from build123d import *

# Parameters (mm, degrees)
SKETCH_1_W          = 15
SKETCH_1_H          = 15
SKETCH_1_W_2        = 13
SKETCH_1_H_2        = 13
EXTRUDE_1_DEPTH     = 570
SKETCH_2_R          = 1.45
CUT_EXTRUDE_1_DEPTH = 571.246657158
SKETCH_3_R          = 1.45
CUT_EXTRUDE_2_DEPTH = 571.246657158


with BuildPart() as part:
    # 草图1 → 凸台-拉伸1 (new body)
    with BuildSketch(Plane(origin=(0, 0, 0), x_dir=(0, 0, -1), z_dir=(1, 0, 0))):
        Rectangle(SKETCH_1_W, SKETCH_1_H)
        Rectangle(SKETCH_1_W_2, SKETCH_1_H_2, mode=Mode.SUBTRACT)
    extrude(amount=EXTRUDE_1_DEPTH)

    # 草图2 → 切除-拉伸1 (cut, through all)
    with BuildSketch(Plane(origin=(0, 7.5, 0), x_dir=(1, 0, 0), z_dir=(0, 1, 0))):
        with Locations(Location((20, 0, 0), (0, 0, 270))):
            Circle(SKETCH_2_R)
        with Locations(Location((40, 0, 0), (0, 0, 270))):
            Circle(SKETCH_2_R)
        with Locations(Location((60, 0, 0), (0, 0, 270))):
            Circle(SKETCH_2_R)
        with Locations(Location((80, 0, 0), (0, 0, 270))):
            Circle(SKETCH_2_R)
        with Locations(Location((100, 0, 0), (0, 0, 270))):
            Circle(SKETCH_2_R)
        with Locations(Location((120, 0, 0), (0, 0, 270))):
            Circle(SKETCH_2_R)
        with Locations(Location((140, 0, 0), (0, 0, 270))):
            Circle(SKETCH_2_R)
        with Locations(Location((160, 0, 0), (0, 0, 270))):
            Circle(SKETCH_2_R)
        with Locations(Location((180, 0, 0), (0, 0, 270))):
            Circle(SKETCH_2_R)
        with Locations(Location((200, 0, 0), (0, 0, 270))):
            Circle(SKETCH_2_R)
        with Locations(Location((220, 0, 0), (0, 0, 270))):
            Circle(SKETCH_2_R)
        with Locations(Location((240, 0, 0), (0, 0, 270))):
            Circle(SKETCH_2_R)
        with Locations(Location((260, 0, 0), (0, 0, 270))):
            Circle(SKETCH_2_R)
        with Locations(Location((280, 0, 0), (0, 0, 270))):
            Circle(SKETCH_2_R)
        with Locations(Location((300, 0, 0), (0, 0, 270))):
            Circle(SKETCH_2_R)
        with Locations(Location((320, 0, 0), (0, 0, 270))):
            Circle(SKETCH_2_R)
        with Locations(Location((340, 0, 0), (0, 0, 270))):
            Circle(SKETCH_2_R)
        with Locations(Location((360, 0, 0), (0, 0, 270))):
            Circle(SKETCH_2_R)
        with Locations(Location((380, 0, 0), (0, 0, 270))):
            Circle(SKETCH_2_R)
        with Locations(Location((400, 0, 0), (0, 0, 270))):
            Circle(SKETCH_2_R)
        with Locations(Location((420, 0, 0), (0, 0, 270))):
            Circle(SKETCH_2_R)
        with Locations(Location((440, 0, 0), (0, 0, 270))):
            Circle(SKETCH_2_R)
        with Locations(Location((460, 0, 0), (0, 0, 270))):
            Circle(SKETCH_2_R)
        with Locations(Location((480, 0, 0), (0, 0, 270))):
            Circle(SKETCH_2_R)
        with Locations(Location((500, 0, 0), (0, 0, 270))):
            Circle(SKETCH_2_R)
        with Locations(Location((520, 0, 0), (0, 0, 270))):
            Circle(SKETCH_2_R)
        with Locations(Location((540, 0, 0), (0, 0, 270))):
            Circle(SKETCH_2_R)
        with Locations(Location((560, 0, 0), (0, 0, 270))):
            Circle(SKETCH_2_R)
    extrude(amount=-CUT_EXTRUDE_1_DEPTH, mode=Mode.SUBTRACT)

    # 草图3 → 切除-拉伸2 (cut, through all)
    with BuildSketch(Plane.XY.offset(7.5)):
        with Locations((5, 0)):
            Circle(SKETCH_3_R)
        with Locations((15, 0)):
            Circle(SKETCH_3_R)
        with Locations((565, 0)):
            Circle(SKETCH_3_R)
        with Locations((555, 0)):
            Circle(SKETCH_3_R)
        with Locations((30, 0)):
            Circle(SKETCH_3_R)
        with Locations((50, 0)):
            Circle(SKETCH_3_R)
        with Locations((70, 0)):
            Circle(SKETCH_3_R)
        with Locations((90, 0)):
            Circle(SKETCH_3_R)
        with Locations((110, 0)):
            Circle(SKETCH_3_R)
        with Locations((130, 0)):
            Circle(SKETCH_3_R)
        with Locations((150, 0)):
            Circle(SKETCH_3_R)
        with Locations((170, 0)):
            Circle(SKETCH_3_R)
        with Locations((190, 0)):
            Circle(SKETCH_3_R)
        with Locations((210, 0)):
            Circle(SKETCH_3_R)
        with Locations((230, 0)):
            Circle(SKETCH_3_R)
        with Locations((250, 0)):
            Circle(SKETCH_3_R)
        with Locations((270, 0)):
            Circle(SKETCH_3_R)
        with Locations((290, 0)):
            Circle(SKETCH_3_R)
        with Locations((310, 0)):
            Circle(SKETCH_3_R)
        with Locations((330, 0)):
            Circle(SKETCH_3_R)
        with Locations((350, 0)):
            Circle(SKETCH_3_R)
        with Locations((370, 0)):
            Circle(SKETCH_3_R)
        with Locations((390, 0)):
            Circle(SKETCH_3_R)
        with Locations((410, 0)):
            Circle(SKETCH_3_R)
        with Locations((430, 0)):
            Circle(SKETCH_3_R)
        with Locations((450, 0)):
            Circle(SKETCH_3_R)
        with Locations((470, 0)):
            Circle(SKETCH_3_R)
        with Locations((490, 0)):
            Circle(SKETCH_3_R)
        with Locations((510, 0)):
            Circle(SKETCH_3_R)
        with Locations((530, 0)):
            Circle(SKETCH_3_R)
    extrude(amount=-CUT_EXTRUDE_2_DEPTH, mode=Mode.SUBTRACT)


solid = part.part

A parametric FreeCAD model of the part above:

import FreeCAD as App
import Part
import Sketcher
Q = App.Units.Quantity


def add_polygon(sketch, points):
    """Adds a closed chain of lines whose ends are joined by coincident constraints."""
    first, n = sketch.GeometryCount, len(points)
    for a, b in zip(points, points[1:] + points[:1]):
        sketch.addGeometry(Part.LineSegment(App.Vector(*a, 0), App.Vector(*b, 0)), False)
    for i in range(n):
        sketch.addConstraint(Sketcher.Constraint("Coincident", first + i, 2, first + (i + 1) % n, 1))

doc = App.newDocument("Part")
body = doc.addObject("PartDesign::Body", "Body")

sketch1 = doc.addObject("Sketcher::SketchObject", "Sketch")
body.addObject(sketch1)
sketch1.AttachmentSupport = (doc.YZ_Plane, [""])
sketch1.MapMode = "FlatFace"
add_polygon(sketch1, [(8, 8), (-8, 8), (-8, -8), (8, -8)])
add_polygon(sketch1, [(-6, -6), (-6, 6), (6, 6), (6, -6)])
sketch1.addConstraint(Sketcher.Constraint("Horizontal", 0))
sketch1.addConstraint(Sketcher.Constraint("Vertical", 1))
sketch1.addConstraint(Sketcher.Constraint("Horizontal", 2))
sketch1.addConstraint(Sketcher.Constraint("Vertical", 3))
sketch1.addConstraint(Sketcher.Constraint("Vertical", 4))
sketch1.addConstraint(Sketcher.Constraint("Horizontal", 5))
sketch1.addConstraint(Sketcher.Constraint("Vertical", 6))
sketch1.addConstraint(Sketcher.Constraint("Horizontal", 7))
sketch1.addConstraint(Sketcher.Constraint("Symmetric", 0, 2, 2, 2, -1, 1))
sketch1.addConstraint(Sketcher.Constraint("Symmetric", 4, 2, 6, 2, -1, 1))
sketch1.addConstraint(Sketcher.Constraint("Equal", 2, 1))
sketch1.addConstraint(Sketcher.Constraint("Equal", 7, 4))
sketch1.addConstraint(Sketcher.Constraint("DistanceX", 0, 2, 0, 1, Q("15 mm")))
sketch1.addConstraint(Sketcher.Constraint("DistanceX", 5, 1, 5, 2, Q("13 mm")))
pad1 = doc.addObject("PartDesign::Pad", "Pad")
body.addObject(pad1)
pad1.Profile = sketch1
pad1.Length = 570

sketch2 = doc.addObject("Sketcher::SketchObject", "Sketch001")
body.addObject(sketch2)
sketch2.AttachmentSupport = (doc.XZ_Plane, [""])
sketch2.MapMode = "FlatFace"
sketch2.AttachmentOffset = App.Placement(App.Vector(0, 0, -7.5), App.Rotation())
sketch2.addGeometry(Part.Circle(App.Vector(20, 0, 0), App.Vector(0, 0, 1), 1.4), False)
sketch2.addGeometry(Part.Circle(App.Vector(40, 0, 0), App.Vector(0, 0, 1), 1.4), False)
sketch2.addGeometry(Part.Circle(App.Vector(60, 0, 0), App.Vector(0, 0, 1), 1.4), False)
sketch2.addGeometry(Part.Circle(App.Vector(80, 0, 0), App.Vector(0, 0, 1), 1.4), False)
sketch2.addGeometry(Part.Circle(App.Vector(100, 0, 0), App.Vector(0, 0, 1), 1.4), False)
sketch2.addGeometry(Part.Circle(App.Vector(120, 0, 0), App.Vector(0, 0, 1), 1.4), False)
sketch2.addGeometry(Part.Circle(App.Vector(140, 0, 0), App.Vector(0, 0, 1), 1.4), False)
sketch2.addGeometry(Part.Circle(App.Vector(160, 0, 0), App.Vector(0, 0, 1), 1.4), False)
sketch2.addGeometry(Part.Circle(App.Vector(180, 0, 0), App.Vector(0, 0, 1), 1.4), False)
sketch2.addGeometry(Part.Circle(App.Vector(200, 0, 0), App.Vector(0, 0, 1), 1.4), False)
sketch2.addGeometry(Part.Circle(App.Vector(220, 0, 0), App.Vector(0, 0, 1), 1.4), False)
sketch2.addGeometry(Part.Circle(App.Vector(240, 0, 0), App.Vector(0, 0, 1), 1.4), False)
sketch2.addGeometry(Part.Circle(App.Vector(260, 0, 0), App.Vector(0, 0, 1), 1.4), False)
sketch2.addGeometry(Part.Circle(App.Vector(280, 0, 0), App.Vector(0, 0, 1), 1.4), False)
sketch2.addGeometry(Part.Circle(App.Vector(300, 0, 0), App.Vector(0, 0, 1), 1.4), False)
sketch2.addGeometry(Part.Circle(App.Vector(320, 0, 0), App.Vector(0, 0, 1), 1.4), False)
sketch2.addGeometry(Part.Circle(App.Vector(340, 0, 0), App.Vector(0, 0, 1), 1.4), False)
sketch2.addGeometry(Part.Circle(App.Vector(360, 0, 0), App.Vector(0, 0, 1), 1.4), False)
sketch2.addGeometry(Part.Circle(App.Vector(380, 0, 0), App.Vector(0, 0, 1), 1.4), False)
sketch2.addGeometry(Part.Circle(App.Vector(400, 0, 0), App.Vector(0, 0, 1), 1.4), False)
sketch2.addGeometry(Part.Circle(App.Vector(420, 0, 0), App.Vector(0, 0, 1), 1.4), False)
sketch2.addGeometry(Part.Circle(App.Vector(440, 0, 0), App.Vector(0, 0, 1), 1.4), False)
sketch2.addGeometry(Part.Circle(App.Vector(460, 0, 0), App.Vector(0, 0, 1), 1.4), False)
sketch2.addGeometry(Part.Circle(App.Vector(480, 0, 0), App.Vector(0, 0, 1), 1.4), False)
sketch2.addGeometry(Part.Circle(App.Vector(500, 0, 0), App.Vector(0, 0, 1), 1.4), False)
sketch2.addGeometry(Part.Circle(App.Vector(520, 0, 0), App.Vector(0, 0, 1), 1.4), False)
sketch2.addGeometry(Part.Circle(App.Vector(540, 0, 0), App.Vector(0, 0, 1), 1.4), False)
sketch2.addGeometry(Part.Circle(App.Vector(560, 0, 0), App.Vector(0, 0, 1), 1.4), False)
sketch2.addConstraint(Sketcher.Constraint("Equal", 0, 1))
sketch2.addConstraint(Sketcher.Constraint("Equal", 1, 2))
sketch2.addConstraint(Sketcher.Constraint("Equal", 2, 3))
sketch2.addConstraint(Sketcher.Constraint("Equal", 3, 4))
sketch2.addConstraint(Sketcher.Constraint("Equal", 4, 5))
sketch2.addConstraint(Sketcher.Constraint("Equal", 5, 6))
sketch2.addConstraint(Sketcher.Constraint("Equal", 6, 7))
sketch2.addConstraint(Sketcher.Constraint("Equal", 7, 8))
sketch2.addConstraint(Sketcher.Constraint("Equal", 8, 9))
sketch2.addConstraint(Sketcher.Constraint("Equal", 9, 10))
sketch2.addConstraint(Sketcher.Constraint("Equal", 10, 11))
sketch2.addConstraint(Sketcher.Constraint("Equal", 11, 12))
sketch2.addConstraint(Sketcher.Constraint("Equal", 12, 13))
sketch2.addConstraint(Sketcher.Constraint("Equal", 13, 14))
sketch2.addConstraint(Sketcher.Constraint("Equal", 14, 15))
sketch2.addConstraint(Sketcher.Constraint("Equal", 15, 16))
sketch2.addConstraint(Sketcher.Constraint("Equal", 16, 17))
sketch2.addConstraint(Sketcher.Constraint("Equal", 17, 18))
sketch2.addConstraint(Sketcher.Constraint("Equal", 18, 19))
sketch2.addConstraint(Sketcher.Constraint("Equal", 19, 20))
sketch2.addConstraint(Sketcher.Constraint("Equal", 20, 21))
sketch2.addConstraint(Sketcher.Constraint("Equal", 21, 22))
sketch2.addConstraint(Sketcher.Constraint("Equal", 22, 23))
sketch2.addConstraint(Sketcher.Constraint("Equal", 23, 24))
sketch2.addConstraint(Sketcher.Constraint("Equal", 24, 25))
sketch2.addConstraint(Sketcher.Constraint("Equal", 25, 26))
sketch2.addConstraint(Sketcher.Constraint("Equal", 26, 27))
sketch2.addConstraint(Sketcher.Constraint("PointOnObject", 0, 3, -1))
sketch2.addConstraint(Sketcher.Constraint("PointOnObject", 1, 3, -1))
sketch2.addConstraint(Sketcher.Constraint("PointOnObject", 2, 3, -1))
sketch2.addConstraint(Sketcher.Constraint("PointOnObject", 3, 3, -1))
sketch2.addConstraint(Sketcher.Constraint("PointOnObject", 4, 3, -1))
sketch2.addConstraint(Sketcher.Constraint("PointOnObject", 5, 3, -1))
sketch2.addConstraint(Sketcher.Constraint("PointOnObject", 6, 3, -1))
sketch2.addConstraint(Sketcher.Constraint("PointOnObject", 7, 3, -1))
sketch2.addConstraint(Sketcher.Constraint("PointOnObject", 8, 3, -1))
sketch2.addConstraint(Sketcher.Constraint("PointOnObject", 9, 3, -1))
sketch2.addConstraint(Sketcher.Constraint("PointOnObject", 10, 3, -1))
sketch2.addConstraint(Sketcher.Constraint("PointOnObject", 11, 3, -1))
sketch2.addConstraint(Sketcher.Constraint("PointOnObject", 12, 3, -1))
sketch2.addConstraint(Sketcher.Constraint("PointOnObject", 13, 3, -1))
sketch2.addConstraint(Sketcher.Constraint("PointOnObject", 14, 3, -1))
sketch2.addConstraint(Sketcher.Constraint("PointOnObject", 15, 3, -1))
sketch2.addConstraint(Sketcher.Constraint("PointOnObject", 16, 3, -1))
sketch2.addConstraint(Sketcher.Constraint("PointOnObject", 17, 3, -1))
sketch2.addConstraint(Sketcher.Constraint("PointOnObject", 18, 3, -1))
sketch2.addConstraint(Sketcher.Constraint("PointOnObject", 19, 3, -1))
sketch2.addConstraint(Sketcher.Constraint("PointOnObject", 20, 3, -1))
sketch2.addConstraint(Sketcher.Constraint("PointOnObject", 21, 3, -1))
sketch2.addConstraint(Sketcher.Constraint("PointOnObject", 22, 3, -1))
sketch2.addConstraint(Sketcher.Constraint("PointOnObject", 23, 3, -1))
sketch2.addConstraint(Sketcher.Constraint("PointOnObject", 24, 3, -1))
sketch2.addConstraint(Sketcher.Constraint("PointOnObject", 25, 3, -1))
sketch2.addConstraint(Sketcher.Constraint("PointOnObject", 26, 3, -1))
sketch2.addConstraint(Sketcher.Constraint("PointOnObject", 27, 3, -1))
sketch2.addConstraint(Sketcher.Constraint("Diameter", 0, Q("2.9 mm")))
sketch2.addConstraint(Sketcher.Constraint("DistanceX", -1, 1, 0, 3, Q("20 mm")))
sketch2.addConstraint(Sketcher.Constraint("DistanceX", -1, 1, 1, 3, Q("40 mm")))
sketch2.addConstraint(Sketcher.Constraint("DistanceX", -1, 1, 2, 3, Q("60 mm")))
sketch2.addConstraint(Sketcher.Constraint("DistanceX", -1, 1, 3, 3, Q("80 mm")))
sketch2.addConstraint(Sketcher.Constraint("DistanceX", -1, 1, 4, 3, Q("100 mm")))
sketch2.addConstraint(Sketcher.Constraint("DistanceX", -1, 1, 5, 3, Q("120 mm")))
sketch2.addConstraint(Sketcher.Constraint("DistanceX", -1, 1, 6, 3, Q("140 mm")))
sketch2.addConstraint(Sketcher.Constraint("DistanceX", -1, 1, 7, 3, Q("160 mm")))
sketch2.addConstraint(Sketcher.Constraint("DistanceX", -1, 1, 8, 3, Q("180 mm")))
sketch2.addConstraint(Sketcher.Constraint("DistanceX", -1, 1, 9, 3, Q("200 mm")))
sketch2.addConstraint(Sketcher.Constraint("DistanceX", -1, 1, 10, 3, Q("220 mm")))
sketch2.addConstraint(Sketcher.Constraint("DistanceX", -1, 1, 11, 3, Q("240 mm")))
sketch2.addConstraint(Sketcher.Constraint("DistanceX", -1, 1, 12, 3, Q("260 mm")))
sketch2.addConstraint(Sketcher.Constraint("DistanceX", -1, 1, 13, 3, Q("280 mm")))
sketch2.addConstraint(Sketcher.Constraint("DistanceX", -1, 1, 14, 3, Q("300 mm")))
sketch2.addConstraint(Sketcher.Constraint("DistanceX", -1, 1, 15, 3, Q("320 mm")))
sketch2.addConstraint(Sketcher.Constraint("DistanceX", -1, 1, 16, 3, Q("340 mm")))
sketch2.addConstraint(Sketcher.Constraint("DistanceX", -1, 1, 17, 3, Q("360 mm")))
sketch2.addConstraint(Sketcher.Constraint("DistanceX", -1, 1, 18, 3, Q("380 mm")))
sketch2.addConstraint(Sketcher.Constraint("DistanceX", -1, 1, 19, 3, Q("400 mm")))
sketch2.addConstraint(Sketcher.Constraint("DistanceX", -1, 1, 20, 3, Q("420 mm")))
sketch2.addConstraint(Sketcher.Constraint("DistanceX", -1, 1, 21, 3, Q("440 mm")))
sketch2.addConstraint(Sketcher.Constraint("DistanceX", -1, 1, 22, 3, Q("460 mm")))
sketch2.addConstraint(Sketcher.Constraint("DistanceX", -1, 1, 23, 3, Q("480 mm")))
sketch2.addConstraint(Sketcher.Constraint("DistanceX", -1, 1, 24, 3, Q("500 mm")))
sketch2.addConstraint(Sketcher.Constraint("DistanceX", -1, 1, 25, 3, Q("520 mm")))
sketch2.addConstraint(Sketcher.Constraint("DistanceX", -1, 1, 26, 3, Q("540 mm")))
sketch2.addConstraint(Sketcher.Constraint("DistanceX", -1, 1, 27, 3, Q("560 mm")))
pocket1 = doc.addObject("PartDesign::Pocket", "Pocket")
body.addObject(pocket1)
pocket1.Profile = sketch2
pocket1.Type = "ThroughAll"
pocket1.Reversed = True

sketch3 = doc.addObject("Sketcher::SketchObject", "Sketch002")
body.addObject(sketch3)
sketch3.AttachmentSupport = (doc.XY_Plane, [""])
sketch3.MapMode = "FlatFace"
sketch3.AttachmentOffset = App.Placement(App.Vector(0, 0, 7.5), App.Rotation())
sketch3.addGeometry(Part.Circle(App.Vector(5, 0, 0), App.Vector(0, 0, 1), 1.4), False)
sketch3.addGeometry(Part.Circle(App.Vector(15, 0, 0), App.Vector(0, 0, 1), 1.4), False)
sketch3.addGeometry(Part.Circle(App.Vector(565, 0, 0), App.Vector(0, 0, 1), 1.4), False)
sketch3.addGeometry(Part.Circle(App.Vector(555, 0, 0), App.Vector(0, 0, 1), 1.4), False)
sketch3.addGeometry(Part.Circle(App.Vector(30, 0, 0), App.Vector(0, 0, 1), 1.4), False)
sketch3.addGeometry(Part.Circle(App.Vector(50, 0, 0), App.Vector(0, 0, 1), 1.4), False)
sketch3.addGeometry(Part.Circle(App.Vector(70, 0, 0), App.Vector(0, 0, 1), 1.4), False)
sketch3.addGeometry(Part.Circle(App.Vector(90, 0, 0), App.Vector(0, 0, 1), 1.4), False)
sketch3.addGeometry(Part.Circle(App.Vector(110, 0, 0), App.Vector(0, 0, 1), 1.4), False)
sketch3.addGeometry(Part.Circle(App.Vector(130, 0, 0), App.Vector(0, 0, 1), 1.4), False)
sketch3.addGeometry(Part.Circle(App.Vector(150, 0, 0), App.Vector(0, 0, 1), 1.4), False)
sketch3.addGeometry(Part.Circle(App.Vector(170, 0, 0), App.Vector(0, 0, 1), 1.4), False)
sketch3.addGeometry(Part.Circle(App.Vector(190, 0, 0), App.Vector(0, 0, 1), 1.4), False)
sketch3.addGeometry(Part.Circle(App.Vector(210, 0, 0), App.Vector(0, 0, 1), 1.4), False)
sketch3.addGeometry(Part.Circle(App.Vector(230, 0, 0), App.Vector(0, 0, 1), 1.4), False)
sketch3.addGeometry(Part.Circle(App.Vector(250, 0, 0), App.Vector(0, 0, 1), 1.4), False)
sketch3.addGeometry(Part.Circle(App.Vector(270, 0, 0), App.Vector(0, 0, 1), 1.4), False)
sketch3.addGeometry(Part.Circle(App.Vector(290, 0, 0), App.Vector(0, 0, 1), 1.4), False)
sketch3.addGeometry(Part.Circle(App.Vector(310, 0, 0), App.Vector(0, 0, 1), 1.4), False)
sketch3.addGeometry(Part.Circle(App.Vector(330, 0, 0), App.Vector(0, 0, 1), 1.4), False)
sketch3.addGeometry(Part.Circle(App.Vector(350, 0, 0), App.Vector(0, 0, 1), 1.4), False)
sketch3.addGeometry(Part.Circle(App.Vector(370, 0, 0), App.Vector(0, 0, 1), 1.4), False)
sketch3.addGeometry(Part.Circle(App.Vector(390, 0, 0), App.Vector(0, 0, 1), 1.4), False)
sketch3.addGeometry(Part.Circle(App.Vector(410, 0, 0), App.Vector(0, 0, 1), 1.4), False)
sketch3.addGeometry(Part.Circle(App.Vector(430, 0, 0), App.Vector(0, 0, 1), 1.4), False)
sketch3.addGeometry(Part.Circle(App.Vector(450, 0, 0), App.Vector(0, 0, 1), 1.4), False)
sketch3.addGeometry(Part.Circle(App.Vector(470, 0, 0), App.Vector(0, 0, 1), 1.4), False)
sketch3.addGeometry(Part.Circle(App.Vector(490, 0, 0), App.Vector(0, 0, 1), 1.4), False)
sketch3.addGeometry(Part.Circle(App.Vector(510, 0, 0), App.Vector(0, 0, 1), 1.4), False)
sketch3.addGeometry(Part.Circle(App.Vector(530, 0, 0), App.Vector(0, 0, 1), 1.4), False)
sketch3.addConstraint(Sketcher.Constraint("Equal", 0, 1))
sketch3.addConstraint(Sketcher.Constraint("Equal", 1, 2))
sketch3.addConstraint(Sketcher.Constraint("Equal", 2, 3))
sketch3.addConstraint(Sketcher.Constraint("Equal", 3, 4))
sketch3.addConstraint(Sketcher.Constraint("Equal", 4, 5))
sketch3.addConstraint(Sketcher.Constraint("Equal", 5, 6))
sketch3.addConstraint(Sketcher.Constraint("Equal", 6, 7))
sketch3.addConstraint(Sketcher.Constraint("Equal", 7, 8))
sketch3.addConstraint(Sketcher.Constraint("Equal", 8, 9))
sketch3.addConstraint(Sketcher.Constraint("Equal", 9, 10))
sketch3.addConstraint(Sketcher.Constraint("Equal", 10, 11))
sketch3.addConstraint(Sketcher.Constraint("Equal", 11, 12))
sketch3.addConstraint(Sketcher.Constraint("Equal", 12, 13))
sketch3.addConstraint(Sketcher.Constraint("Equal", 13, 14))
sketch3.addConstraint(Sketcher.Constraint("Equal", 14, 15))
sketch3.addConstraint(Sketcher.Constraint("Equal", 15, 16))
sketch3.addConstraint(Sketcher.Constraint("Equal", 16, 17))
sketch3.addConstraint(Sketcher.Constraint("Equal", 17, 18))
sketch3.addConstraint(Sketcher.Constraint("Equal", 18, 19))
sketch3.addConstraint(Sketcher.Constraint("Equal", 19, 20))
sketch3.addConstraint(Sketcher.Constraint("Equal", 20, 21))
sketch3.addConstraint(Sketcher.Constraint("Equal", 21, 22))
sketch3.addConstraint(Sketcher.Constraint("Equal", 22, 23))
sketch3.addConstraint(Sketcher.Constraint("Equal", 23, 24))
sketch3.addConstraint(Sketcher.Constraint("Equal", 24, 25))
sketch3.addConstraint(Sketcher.Constraint("Equal", 25, 26))
sketch3.addConstraint(Sketcher.Constraint("Equal", 26, 27))
sketch3.addConstraint(Sketcher.Constraint("Equal", 27, 28))
sketch3.addConstraint(Sketcher.Constraint("Equal", 28, 29))
sketch3.addConstraint(Sketcher.Constraint("PointOnObject", 0, 3, -1))
sketch3.addConstraint(Sketcher.Constraint("PointOnObject", 1, 3, -1))
sketch3.addConstraint(Sketcher.Constraint("PointOnObject", 2, 3, -1))
sketch3.addConstraint(Sketcher.Constraint("PointOnObject", 3, 3, -1))
sketch3.addConstraint(Sketcher.Constraint("PointOnObject", 4, 3, -1))
sketch3.addConstraint(Sketcher.Constraint("PointOnObject", 5, 3, -1))
sketch3.addConstraint(Sketcher.Constraint("PointOnObject", 6, 3, -1))
sketch3.addConstraint(Sketcher.Constraint("PointOnObject", 7, 3, -1))
sketch3.addConstraint(Sketcher.Constraint("PointOnObject", 8, 3, -1))
sketch3.addConstraint(Sketcher.Constraint("PointOnObject", 9, 3, -1))
sketch3.addConstraint(Sketcher.Constraint("PointOnObject", 10, 3, -1))
sketch3.addConstraint(Sketcher.Constraint("PointOnObject", 11, 3, -1))
sketch3.addConstraint(Sketcher.Constraint("PointOnObject", 12, 3, -1))
sketch3.addConstraint(Sketcher.Constraint("PointOnObject", 13, 3, -1))
sketch3.addConstraint(Sketcher.Constraint("PointOnObject", 14, 3, -1))
sketch3.addConstraint(Sketcher.Constraint("PointOnObject", 15, 3, -1))
sketch3.addConstraint(Sketcher.Constraint("PointOnObject", 16, 3, -1))
sketch3.addConstraint(Sketcher.Constraint("PointOnObject", 17, 3, -1))
sketch3.addConstraint(Sketcher.Constraint("PointOnObject", 18, 3, -1))
sketch3.addConstraint(Sketcher.Constraint("PointOnObject", 19, 3, -1))
sketch3.addConstraint(Sketcher.Constraint("PointOnObject", 20, 3, -1))
sketch3.addConstraint(Sketcher.Constraint("PointOnObject", 21, 3, -1))
sketch3.addConstraint(Sketcher.Constraint("PointOnObject", 22, 3, -1))
sketch3.addConstraint(Sketcher.Constraint("PointOnObject", 23, 3, -1))
sketch3.addConstraint(Sketcher.Constraint("PointOnObject", 24, 3, -1))
sketch3.addConstraint(Sketcher.Constraint("PointOnObject", 25, 3, -1))
sketch3.addConstraint(Sketcher.Constraint("PointOnObject", 26, 3, -1))
sketch3.addConstraint(Sketcher.Constraint("PointOnObject", 27, 3, -1))
sketch3.addConstraint(Sketcher.Constraint("PointOnObject", 28, 3, -1))
sketch3.addConstraint(Sketcher.Constraint("PointOnObject", 29, 3, -1))
sketch3.addConstraint(Sketcher.Constraint("Diameter", 0, Q("2.9 mm")))
sketch3.addConstraint(Sketcher.Constraint("DistanceX", -1, 1, 0, 3, Q("5 mm")))
sketch3.addConstraint(Sketcher.Constraint("DistanceX", -1, 1, 1, 3, Q("15 mm")))
sketch3.addConstraint(Sketcher.Constraint("DistanceX", -1, 1, 2, 3, Q("565 mm")))
sketch3.addConstraint(Sketcher.Constraint("DistanceX", -1, 1, 3, 3, Q("555 mm")))
sketch3.addConstraint(Sketcher.Constraint("DistanceX", -1, 1, 4, 3, Q("30 mm")))
sketch3.addConstraint(Sketcher.Constraint("DistanceX", -1, 1, 5, 3, Q("50 mm")))
sketch3.addConstraint(Sketcher.Constraint("DistanceX", -1, 1, 6, 3, Q("70 mm")))
sketch3.addConstraint(Sketcher.Constraint("DistanceX", -1, 1, 7, 3, Q("90 mm")))
sketch3.addConstraint(Sketcher.Constraint("DistanceX", -1, 1, 8, 3, Q("110 mm")))
sketch3.addConstraint(Sketcher.Constraint("DistanceX", -1, 1, 9, 3, Q("130 mm")))
sketch3.addConstraint(Sketcher.Constraint("DistanceX", -1, 1, 10, 3, Q("150 mm")))
sketch3.addConstraint(Sketcher.Constraint("DistanceX", -1, 1, 11, 3, Q("170 mm")))
sketch3.addConstraint(Sketcher.Constraint("DistanceX", -1, 1, 12, 3, Q("190 mm")))
sketch3.addConstraint(Sketcher.Constraint("DistanceX", -1, 1, 13, 3, Q("210 mm")))
sketch3.addConstraint(Sketcher.Constraint("DistanceX", -1, 1, 14, 3, Q("230 mm")))
sketch3.addConstraint(Sketcher.Constraint("DistanceX", -1, 1, 15, 3, Q("250 mm")))
sketch3.addConstraint(Sketcher.Constraint("DistanceX", -1, 1, 16, 3, Q("270 mm")))
sketch3.addConstraint(Sketcher.Constraint("DistanceX", -1, 1, 17, 3, Q("290 mm")))
sketch3.addConstraint(Sketcher.Constraint("DistanceX", -1, 1, 18, 3, Q("310 mm")))
sketch3.addConstraint(Sketcher.Constraint("DistanceX", -1, 1, 19, 3, Q("330 mm")))
sketch3.addConstraint(Sketcher.Constraint("DistanceX", -1, 1, 20, 3, Q("350 mm")))
sketch3.addConstraint(Sketcher.Constraint("DistanceX", -1, 1, 21, 3, Q("370 mm")))
sketch3.addConstraint(Sketcher.Constraint("DistanceX", -1, 1, 22, 3, Q("390 mm")))
sketch3.addConstraint(Sketcher.Constraint("DistanceX", -1, 1, 23, 3, Q("410 mm")))
sketch3.addConstraint(Sketcher.Constraint("DistanceX", -1, 1, 24, 3, Q("430 mm")))
sketch3.addConstraint(Sketcher.Constraint("DistanceX", -1, 1, 25, 3, Q("450 mm")))
sketch3.addConstraint(Sketcher.Constraint("DistanceX", -1, 1, 26, 3, Q("470 mm")))
sketch3.addConstraint(Sketcher.Constraint("DistanceX", -1, 1, 27, 3, Q("490 mm")))
sketch3.addConstraint(Sketcher.Constraint("DistanceX", -1, 1, 28, 3, Q("510 mm")))
sketch3.addConstraint(Sketcher.Constraint("DistanceX", -1, 1, 29, 3, Q("530 mm")))
pocket2 = doc.addObject("PartDesign::Pocket", "Pocket001")
body.addObject(pocket2)
pocket2.Profile = sketch3
pocket2.Type = "ThroughAll"

doc.recompute()
